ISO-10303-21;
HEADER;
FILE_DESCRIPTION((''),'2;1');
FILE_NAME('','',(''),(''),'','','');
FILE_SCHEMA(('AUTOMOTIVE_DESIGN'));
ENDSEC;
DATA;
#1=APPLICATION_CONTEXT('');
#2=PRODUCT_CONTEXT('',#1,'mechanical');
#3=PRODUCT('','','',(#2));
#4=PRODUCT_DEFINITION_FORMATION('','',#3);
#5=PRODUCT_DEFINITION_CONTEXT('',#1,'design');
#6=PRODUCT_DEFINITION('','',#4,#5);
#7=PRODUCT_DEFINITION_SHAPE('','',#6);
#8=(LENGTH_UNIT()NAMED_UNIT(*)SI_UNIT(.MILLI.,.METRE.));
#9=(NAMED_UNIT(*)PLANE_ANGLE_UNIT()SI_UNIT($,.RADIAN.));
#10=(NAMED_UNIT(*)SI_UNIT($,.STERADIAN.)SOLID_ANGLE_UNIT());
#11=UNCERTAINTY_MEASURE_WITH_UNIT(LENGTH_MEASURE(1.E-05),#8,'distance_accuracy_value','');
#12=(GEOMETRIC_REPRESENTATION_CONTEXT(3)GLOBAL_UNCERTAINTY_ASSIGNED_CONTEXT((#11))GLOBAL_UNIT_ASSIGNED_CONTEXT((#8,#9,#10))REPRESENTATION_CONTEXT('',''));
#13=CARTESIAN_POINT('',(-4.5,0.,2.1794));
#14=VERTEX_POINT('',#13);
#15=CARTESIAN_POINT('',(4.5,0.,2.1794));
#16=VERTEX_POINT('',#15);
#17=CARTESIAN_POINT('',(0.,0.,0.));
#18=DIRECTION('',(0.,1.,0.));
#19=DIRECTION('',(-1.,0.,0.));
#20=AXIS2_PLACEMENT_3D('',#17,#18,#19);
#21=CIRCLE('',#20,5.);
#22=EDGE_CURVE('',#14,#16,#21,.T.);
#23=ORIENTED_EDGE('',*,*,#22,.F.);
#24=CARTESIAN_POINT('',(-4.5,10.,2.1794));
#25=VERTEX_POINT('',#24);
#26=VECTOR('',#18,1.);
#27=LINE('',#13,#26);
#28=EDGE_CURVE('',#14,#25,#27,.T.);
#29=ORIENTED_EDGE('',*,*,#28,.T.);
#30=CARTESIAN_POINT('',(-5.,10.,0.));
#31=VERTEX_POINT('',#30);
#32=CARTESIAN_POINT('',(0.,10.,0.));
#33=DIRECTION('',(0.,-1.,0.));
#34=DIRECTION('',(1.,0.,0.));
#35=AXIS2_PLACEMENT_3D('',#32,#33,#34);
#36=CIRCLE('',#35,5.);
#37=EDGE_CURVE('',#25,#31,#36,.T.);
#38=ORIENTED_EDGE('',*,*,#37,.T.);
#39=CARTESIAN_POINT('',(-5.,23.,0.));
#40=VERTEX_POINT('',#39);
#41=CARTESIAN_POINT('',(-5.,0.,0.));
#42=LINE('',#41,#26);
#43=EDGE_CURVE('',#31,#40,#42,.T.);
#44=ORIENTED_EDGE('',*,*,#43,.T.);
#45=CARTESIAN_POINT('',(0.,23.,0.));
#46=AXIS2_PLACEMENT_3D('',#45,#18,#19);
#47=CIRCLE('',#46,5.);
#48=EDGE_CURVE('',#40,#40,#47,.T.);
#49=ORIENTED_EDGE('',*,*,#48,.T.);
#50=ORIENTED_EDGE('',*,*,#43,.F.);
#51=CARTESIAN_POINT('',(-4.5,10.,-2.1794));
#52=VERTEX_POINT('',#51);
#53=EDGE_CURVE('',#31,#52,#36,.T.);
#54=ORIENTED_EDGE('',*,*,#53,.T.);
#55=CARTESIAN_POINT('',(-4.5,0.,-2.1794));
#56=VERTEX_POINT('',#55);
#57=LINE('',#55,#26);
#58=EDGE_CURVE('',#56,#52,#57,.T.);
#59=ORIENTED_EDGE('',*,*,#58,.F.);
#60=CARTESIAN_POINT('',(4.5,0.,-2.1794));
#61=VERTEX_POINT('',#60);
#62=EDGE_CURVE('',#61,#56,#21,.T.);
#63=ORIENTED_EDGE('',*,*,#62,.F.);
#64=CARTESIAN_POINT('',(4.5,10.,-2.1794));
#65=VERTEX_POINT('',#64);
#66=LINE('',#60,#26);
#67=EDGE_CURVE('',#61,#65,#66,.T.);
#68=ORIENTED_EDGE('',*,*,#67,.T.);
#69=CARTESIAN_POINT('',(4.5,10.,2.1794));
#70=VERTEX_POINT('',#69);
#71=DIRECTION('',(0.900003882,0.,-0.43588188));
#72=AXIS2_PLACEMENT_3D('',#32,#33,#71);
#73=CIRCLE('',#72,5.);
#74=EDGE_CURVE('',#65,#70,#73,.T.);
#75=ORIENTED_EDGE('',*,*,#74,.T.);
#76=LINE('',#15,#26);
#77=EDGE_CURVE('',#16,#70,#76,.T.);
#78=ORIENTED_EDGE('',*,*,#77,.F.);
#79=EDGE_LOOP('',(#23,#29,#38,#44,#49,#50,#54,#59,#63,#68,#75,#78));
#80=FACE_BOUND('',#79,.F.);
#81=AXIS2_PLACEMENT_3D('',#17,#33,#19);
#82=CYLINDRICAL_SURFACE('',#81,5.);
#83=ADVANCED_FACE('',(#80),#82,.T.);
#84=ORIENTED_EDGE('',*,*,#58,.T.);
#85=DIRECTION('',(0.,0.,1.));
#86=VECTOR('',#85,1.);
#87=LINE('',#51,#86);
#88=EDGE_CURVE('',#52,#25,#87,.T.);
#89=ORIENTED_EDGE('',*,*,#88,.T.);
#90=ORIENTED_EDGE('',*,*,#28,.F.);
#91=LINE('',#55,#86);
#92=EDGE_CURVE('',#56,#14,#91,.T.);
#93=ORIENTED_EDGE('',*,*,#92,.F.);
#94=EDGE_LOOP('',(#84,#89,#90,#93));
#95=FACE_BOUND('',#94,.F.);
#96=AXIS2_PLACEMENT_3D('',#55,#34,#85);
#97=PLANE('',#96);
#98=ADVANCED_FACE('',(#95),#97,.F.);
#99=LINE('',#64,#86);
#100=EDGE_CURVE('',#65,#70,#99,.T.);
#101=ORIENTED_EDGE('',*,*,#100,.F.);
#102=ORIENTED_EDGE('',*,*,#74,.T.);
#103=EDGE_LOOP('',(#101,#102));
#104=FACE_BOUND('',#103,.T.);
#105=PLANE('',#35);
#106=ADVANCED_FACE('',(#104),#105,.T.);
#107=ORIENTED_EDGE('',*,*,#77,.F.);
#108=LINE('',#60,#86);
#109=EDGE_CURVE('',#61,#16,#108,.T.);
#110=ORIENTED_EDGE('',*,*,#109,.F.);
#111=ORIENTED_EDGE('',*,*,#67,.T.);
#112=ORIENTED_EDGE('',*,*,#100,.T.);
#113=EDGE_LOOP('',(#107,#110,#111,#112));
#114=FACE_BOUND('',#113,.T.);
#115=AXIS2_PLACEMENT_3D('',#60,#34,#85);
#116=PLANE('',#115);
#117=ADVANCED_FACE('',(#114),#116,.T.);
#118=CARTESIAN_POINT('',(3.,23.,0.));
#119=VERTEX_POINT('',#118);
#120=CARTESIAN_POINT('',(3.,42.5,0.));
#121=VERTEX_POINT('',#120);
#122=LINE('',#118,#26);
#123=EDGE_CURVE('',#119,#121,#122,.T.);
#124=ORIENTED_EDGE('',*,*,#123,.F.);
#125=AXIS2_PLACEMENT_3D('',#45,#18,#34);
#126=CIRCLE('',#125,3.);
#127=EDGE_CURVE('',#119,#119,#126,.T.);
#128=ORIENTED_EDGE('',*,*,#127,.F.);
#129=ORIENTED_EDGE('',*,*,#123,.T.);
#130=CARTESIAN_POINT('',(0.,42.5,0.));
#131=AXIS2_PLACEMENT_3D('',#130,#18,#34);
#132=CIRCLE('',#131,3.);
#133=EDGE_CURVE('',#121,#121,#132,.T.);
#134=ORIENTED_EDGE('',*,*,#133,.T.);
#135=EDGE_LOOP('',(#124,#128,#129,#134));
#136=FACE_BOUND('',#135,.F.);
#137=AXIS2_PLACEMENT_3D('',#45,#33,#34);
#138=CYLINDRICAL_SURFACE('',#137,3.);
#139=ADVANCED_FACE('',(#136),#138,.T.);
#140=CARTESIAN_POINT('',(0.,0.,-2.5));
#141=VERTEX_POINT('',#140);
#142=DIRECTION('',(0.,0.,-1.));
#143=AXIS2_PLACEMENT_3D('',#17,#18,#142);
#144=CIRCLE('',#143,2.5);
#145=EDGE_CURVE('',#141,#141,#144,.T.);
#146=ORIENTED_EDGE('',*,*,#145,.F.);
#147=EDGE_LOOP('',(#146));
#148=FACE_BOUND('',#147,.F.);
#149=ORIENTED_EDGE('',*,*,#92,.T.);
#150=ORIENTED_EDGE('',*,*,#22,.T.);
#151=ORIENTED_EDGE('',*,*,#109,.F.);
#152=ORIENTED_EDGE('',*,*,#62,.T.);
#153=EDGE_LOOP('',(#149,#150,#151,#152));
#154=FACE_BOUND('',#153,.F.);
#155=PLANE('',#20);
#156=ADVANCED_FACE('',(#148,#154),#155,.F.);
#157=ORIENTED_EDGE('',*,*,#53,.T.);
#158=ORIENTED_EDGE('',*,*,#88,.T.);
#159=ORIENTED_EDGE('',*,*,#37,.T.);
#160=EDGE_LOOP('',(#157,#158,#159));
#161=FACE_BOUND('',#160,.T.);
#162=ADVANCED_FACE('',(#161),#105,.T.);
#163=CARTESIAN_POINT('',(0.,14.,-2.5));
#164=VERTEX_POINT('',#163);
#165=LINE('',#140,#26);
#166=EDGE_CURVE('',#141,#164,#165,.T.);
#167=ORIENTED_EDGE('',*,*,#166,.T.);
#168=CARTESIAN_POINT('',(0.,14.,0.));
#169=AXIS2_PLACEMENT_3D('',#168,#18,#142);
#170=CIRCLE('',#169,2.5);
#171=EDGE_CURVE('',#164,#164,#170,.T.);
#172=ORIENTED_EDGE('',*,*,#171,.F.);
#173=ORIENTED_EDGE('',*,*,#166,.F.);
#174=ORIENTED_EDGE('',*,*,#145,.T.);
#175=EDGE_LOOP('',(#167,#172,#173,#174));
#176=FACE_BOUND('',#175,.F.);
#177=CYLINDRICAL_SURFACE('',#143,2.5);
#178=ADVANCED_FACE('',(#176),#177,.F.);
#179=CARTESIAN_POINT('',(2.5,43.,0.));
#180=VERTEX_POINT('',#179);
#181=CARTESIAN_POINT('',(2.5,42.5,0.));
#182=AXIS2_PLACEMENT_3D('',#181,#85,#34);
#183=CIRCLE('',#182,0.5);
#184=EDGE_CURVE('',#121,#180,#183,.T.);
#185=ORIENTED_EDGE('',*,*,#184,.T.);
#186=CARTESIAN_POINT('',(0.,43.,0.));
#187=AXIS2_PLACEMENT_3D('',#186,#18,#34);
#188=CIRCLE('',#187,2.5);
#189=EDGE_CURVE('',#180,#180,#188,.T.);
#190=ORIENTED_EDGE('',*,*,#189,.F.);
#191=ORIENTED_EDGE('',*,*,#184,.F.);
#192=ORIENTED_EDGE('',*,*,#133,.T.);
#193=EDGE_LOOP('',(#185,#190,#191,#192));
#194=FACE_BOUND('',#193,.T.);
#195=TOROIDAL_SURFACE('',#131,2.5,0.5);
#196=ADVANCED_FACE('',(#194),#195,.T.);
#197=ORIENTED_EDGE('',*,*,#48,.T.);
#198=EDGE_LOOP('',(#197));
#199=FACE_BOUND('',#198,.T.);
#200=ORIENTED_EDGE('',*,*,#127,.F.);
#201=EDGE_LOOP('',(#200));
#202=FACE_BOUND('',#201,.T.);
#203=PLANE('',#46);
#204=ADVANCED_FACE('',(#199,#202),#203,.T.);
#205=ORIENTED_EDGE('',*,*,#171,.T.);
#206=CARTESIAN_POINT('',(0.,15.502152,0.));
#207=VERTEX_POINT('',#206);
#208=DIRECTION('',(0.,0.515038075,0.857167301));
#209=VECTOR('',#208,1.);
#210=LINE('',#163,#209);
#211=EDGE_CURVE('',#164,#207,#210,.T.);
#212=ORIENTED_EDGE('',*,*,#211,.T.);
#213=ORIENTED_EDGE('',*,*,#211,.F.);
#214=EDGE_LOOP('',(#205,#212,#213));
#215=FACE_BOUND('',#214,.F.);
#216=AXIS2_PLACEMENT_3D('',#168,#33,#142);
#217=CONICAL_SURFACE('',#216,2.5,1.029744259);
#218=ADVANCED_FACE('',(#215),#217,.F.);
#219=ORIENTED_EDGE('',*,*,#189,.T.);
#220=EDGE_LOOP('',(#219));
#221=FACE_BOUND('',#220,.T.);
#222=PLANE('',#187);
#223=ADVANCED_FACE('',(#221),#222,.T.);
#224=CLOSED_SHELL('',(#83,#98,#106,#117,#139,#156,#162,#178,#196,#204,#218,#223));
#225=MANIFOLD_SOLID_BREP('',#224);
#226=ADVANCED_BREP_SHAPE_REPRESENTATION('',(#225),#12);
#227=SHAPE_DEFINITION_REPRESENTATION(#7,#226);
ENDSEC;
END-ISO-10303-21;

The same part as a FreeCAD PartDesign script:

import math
import FreeCAD as App
import Part
import Sketcher

V = App.Vector
Q = App.Units.Quantity


def edges_at(feature, points):
    """Names of the edges that pass closest to the given points."""
    edges = feature.Shape.Edges
    near = lambda p: min(range(len(edges)), key=lambda i: edges[i].distToShape(Part.Vertex(*p))[0])
    return sorted({f"Edge{near(p) + 1}" for p in points})

doc = App.newDocument("Part")
body = doc.addObject("PartDesign::Body", "Body")

# Sketch on XZ plane
sketch1 = body.newObject("Sketcher::SketchObject", "Sketch")
sketch1.AttachmentSupport = (doc.getObject("XZ_Plane"), [""])
sketch1.MapMode = "FlatFace"
sketch1.addGeometry(Part.Circle(V(0, 0, 0), V(0, 0, 1), 5), False)
sketch1.addConstraint(Sketcher.Constraint("Coincident", 0, 3, -1, 1))
sketch1.addConstraint(Sketcher.Constraint("Diameter", 0, Q("10 mm")))
pad1 = body.newObject("PartDesign::Pad", "Pad")
pad1.Profile = sketch1
pad1.Length = 23
pad1.Reversed = True

# Sketch on XZ plane
sketch2 = body.newObject("Sketcher::SketchObject", "Sketch001")
sketch2.AttachmentSupport = (doc.getObject("XZ_Plane"), [""])
sketch2.MapMode = "FlatFace"
sketch2.AttachmentOffset = App.Placement(V(0, 0, -23), App.Rotation())
sketch2.addGeometry(Part.Circle(V(0, 0, 0), V(0, 0, 1), 3), False)
sketch2.addConstraint(Sketcher.Constraint("Coincident", 0, 3, -1, 1))
sketch2.addConstraint(Sketcher.Constraint("Diameter", 0, Q("6 mm")))
pad2 = body.newObject("PartDesign::Pad", "Pad001")
pad2.Profile = sketch2
pad2.Length = 20
pad2.Reversed = True
doc.recompute()

fillet = body.newObject("PartDesign::Fillet", "Fillet")
fillet.Base = (pad2, edges_at(pad2, [(-3, 43, 0)]))
fillet.Radius = 0.5

# Sketch on XZ plane
sketch3 = body.newObject("Sketcher::SketchObject", "Sketch002")
sketch3.AttachmentSupport = (doc.getObject("XZ_Plane"), [""])
sketch3.MapMode = "FlatFace"
sketch3.addGeometry(Part.ArcOfCircle(Part.Circle(V(0, 0, 0), V(0, 0, 1), 5), math.radians(-25.841423), math.radians(25.841423)), False)
sketch3.addGeometry(Part.LineSegment(V(4.5, -2.1794, 0), V(4.5, 2.1794, 0)), False)
sketch3.addGeometry(Part.LineSegment(V(-4.5, -2.1794, 0), V(-4.5, 2.1794, 0)), False)
sketch3.addGeometry(Part.ArcOfCircle(Part.Circle(V(0, 0, 0), V(0, 0, 1), 5), math.radians(154.158577), math.radians(205.841423)), False)
sketch3.addConstraint(Sketcher.Constraint("Coincident", 0, 1, 1, 1))
sketch3.addConstraint(Sketcher.Constraint("Coincident", 1, 2, 0, 2))
sketch3.addConstraint(Sketcher.Constraint("Coincident", 2, 1, 3, 2))
sketch3.addConstraint(Sketcher.Constraint("Coincident", 3, 1, 2, 2))
sketch3.addConstraint(Sketcher.Constraint("Vertical", 1))
sketch3.addConstraint(Sketcher.Constraint("Vertical", 2))
sketch3.addConstraint(Sketcher.Constraint("Coincident", 0, 3, -1, 1))
sketch3.addConstraint(Sketcher.Constraint("Coincident", 3, 3, -1, 1))
sketch3.addConstraint(Sketcher.Constraint("Equal", 0, 3))
sketch3.addConstraint(Sketcher.Constraint("Horizontal", 0, 1, 2, 1))
sketch3.addConstraint(Sketcher.Constraint("Radius", 0, Q("5 mm")))
sketch3.addConstraint(Sketcher.Constraint("DistanceX", 2, 1, 0, 1, Q("9 mm")))
pocket1 = body.newObject("PartDesign::Pocket", "Pocket")
pocket1.Profile = sketch3
pocket1.Length = 10

# Sketch on XZ plane
sketch4 = body.newObject("Sketcher::SketchObject", "Sketch003")
sketch4.AttachmentSupport = (doc.getObject("XZ_Plane"), [""])
sketch4.MapMode = "FlatFace"
sketch4.addGeometry(Part.Circle(V(0, 0, 0), V(0, 0, 1), 2.5), False)
sketch4.addConstraint(Sketcher.Constraint("Coincident", 0, 3, -1, 1))
sketch4.addConstraint(Sketcher.Constraint("Diameter", 0, Q("5 mm")))
doc.recompute()
hole = body.newObject("PartDesign::Hole", "Hole")
hole.Profile = sketch4
hole.ThreadType = "None"
hole.Diameter = 5
hole.DepthType = "Dimension"
hole.Depth = 14
hole.DrillPoint = "Angled"
hole.DrillPointAngle = 118

doc.recompute()
